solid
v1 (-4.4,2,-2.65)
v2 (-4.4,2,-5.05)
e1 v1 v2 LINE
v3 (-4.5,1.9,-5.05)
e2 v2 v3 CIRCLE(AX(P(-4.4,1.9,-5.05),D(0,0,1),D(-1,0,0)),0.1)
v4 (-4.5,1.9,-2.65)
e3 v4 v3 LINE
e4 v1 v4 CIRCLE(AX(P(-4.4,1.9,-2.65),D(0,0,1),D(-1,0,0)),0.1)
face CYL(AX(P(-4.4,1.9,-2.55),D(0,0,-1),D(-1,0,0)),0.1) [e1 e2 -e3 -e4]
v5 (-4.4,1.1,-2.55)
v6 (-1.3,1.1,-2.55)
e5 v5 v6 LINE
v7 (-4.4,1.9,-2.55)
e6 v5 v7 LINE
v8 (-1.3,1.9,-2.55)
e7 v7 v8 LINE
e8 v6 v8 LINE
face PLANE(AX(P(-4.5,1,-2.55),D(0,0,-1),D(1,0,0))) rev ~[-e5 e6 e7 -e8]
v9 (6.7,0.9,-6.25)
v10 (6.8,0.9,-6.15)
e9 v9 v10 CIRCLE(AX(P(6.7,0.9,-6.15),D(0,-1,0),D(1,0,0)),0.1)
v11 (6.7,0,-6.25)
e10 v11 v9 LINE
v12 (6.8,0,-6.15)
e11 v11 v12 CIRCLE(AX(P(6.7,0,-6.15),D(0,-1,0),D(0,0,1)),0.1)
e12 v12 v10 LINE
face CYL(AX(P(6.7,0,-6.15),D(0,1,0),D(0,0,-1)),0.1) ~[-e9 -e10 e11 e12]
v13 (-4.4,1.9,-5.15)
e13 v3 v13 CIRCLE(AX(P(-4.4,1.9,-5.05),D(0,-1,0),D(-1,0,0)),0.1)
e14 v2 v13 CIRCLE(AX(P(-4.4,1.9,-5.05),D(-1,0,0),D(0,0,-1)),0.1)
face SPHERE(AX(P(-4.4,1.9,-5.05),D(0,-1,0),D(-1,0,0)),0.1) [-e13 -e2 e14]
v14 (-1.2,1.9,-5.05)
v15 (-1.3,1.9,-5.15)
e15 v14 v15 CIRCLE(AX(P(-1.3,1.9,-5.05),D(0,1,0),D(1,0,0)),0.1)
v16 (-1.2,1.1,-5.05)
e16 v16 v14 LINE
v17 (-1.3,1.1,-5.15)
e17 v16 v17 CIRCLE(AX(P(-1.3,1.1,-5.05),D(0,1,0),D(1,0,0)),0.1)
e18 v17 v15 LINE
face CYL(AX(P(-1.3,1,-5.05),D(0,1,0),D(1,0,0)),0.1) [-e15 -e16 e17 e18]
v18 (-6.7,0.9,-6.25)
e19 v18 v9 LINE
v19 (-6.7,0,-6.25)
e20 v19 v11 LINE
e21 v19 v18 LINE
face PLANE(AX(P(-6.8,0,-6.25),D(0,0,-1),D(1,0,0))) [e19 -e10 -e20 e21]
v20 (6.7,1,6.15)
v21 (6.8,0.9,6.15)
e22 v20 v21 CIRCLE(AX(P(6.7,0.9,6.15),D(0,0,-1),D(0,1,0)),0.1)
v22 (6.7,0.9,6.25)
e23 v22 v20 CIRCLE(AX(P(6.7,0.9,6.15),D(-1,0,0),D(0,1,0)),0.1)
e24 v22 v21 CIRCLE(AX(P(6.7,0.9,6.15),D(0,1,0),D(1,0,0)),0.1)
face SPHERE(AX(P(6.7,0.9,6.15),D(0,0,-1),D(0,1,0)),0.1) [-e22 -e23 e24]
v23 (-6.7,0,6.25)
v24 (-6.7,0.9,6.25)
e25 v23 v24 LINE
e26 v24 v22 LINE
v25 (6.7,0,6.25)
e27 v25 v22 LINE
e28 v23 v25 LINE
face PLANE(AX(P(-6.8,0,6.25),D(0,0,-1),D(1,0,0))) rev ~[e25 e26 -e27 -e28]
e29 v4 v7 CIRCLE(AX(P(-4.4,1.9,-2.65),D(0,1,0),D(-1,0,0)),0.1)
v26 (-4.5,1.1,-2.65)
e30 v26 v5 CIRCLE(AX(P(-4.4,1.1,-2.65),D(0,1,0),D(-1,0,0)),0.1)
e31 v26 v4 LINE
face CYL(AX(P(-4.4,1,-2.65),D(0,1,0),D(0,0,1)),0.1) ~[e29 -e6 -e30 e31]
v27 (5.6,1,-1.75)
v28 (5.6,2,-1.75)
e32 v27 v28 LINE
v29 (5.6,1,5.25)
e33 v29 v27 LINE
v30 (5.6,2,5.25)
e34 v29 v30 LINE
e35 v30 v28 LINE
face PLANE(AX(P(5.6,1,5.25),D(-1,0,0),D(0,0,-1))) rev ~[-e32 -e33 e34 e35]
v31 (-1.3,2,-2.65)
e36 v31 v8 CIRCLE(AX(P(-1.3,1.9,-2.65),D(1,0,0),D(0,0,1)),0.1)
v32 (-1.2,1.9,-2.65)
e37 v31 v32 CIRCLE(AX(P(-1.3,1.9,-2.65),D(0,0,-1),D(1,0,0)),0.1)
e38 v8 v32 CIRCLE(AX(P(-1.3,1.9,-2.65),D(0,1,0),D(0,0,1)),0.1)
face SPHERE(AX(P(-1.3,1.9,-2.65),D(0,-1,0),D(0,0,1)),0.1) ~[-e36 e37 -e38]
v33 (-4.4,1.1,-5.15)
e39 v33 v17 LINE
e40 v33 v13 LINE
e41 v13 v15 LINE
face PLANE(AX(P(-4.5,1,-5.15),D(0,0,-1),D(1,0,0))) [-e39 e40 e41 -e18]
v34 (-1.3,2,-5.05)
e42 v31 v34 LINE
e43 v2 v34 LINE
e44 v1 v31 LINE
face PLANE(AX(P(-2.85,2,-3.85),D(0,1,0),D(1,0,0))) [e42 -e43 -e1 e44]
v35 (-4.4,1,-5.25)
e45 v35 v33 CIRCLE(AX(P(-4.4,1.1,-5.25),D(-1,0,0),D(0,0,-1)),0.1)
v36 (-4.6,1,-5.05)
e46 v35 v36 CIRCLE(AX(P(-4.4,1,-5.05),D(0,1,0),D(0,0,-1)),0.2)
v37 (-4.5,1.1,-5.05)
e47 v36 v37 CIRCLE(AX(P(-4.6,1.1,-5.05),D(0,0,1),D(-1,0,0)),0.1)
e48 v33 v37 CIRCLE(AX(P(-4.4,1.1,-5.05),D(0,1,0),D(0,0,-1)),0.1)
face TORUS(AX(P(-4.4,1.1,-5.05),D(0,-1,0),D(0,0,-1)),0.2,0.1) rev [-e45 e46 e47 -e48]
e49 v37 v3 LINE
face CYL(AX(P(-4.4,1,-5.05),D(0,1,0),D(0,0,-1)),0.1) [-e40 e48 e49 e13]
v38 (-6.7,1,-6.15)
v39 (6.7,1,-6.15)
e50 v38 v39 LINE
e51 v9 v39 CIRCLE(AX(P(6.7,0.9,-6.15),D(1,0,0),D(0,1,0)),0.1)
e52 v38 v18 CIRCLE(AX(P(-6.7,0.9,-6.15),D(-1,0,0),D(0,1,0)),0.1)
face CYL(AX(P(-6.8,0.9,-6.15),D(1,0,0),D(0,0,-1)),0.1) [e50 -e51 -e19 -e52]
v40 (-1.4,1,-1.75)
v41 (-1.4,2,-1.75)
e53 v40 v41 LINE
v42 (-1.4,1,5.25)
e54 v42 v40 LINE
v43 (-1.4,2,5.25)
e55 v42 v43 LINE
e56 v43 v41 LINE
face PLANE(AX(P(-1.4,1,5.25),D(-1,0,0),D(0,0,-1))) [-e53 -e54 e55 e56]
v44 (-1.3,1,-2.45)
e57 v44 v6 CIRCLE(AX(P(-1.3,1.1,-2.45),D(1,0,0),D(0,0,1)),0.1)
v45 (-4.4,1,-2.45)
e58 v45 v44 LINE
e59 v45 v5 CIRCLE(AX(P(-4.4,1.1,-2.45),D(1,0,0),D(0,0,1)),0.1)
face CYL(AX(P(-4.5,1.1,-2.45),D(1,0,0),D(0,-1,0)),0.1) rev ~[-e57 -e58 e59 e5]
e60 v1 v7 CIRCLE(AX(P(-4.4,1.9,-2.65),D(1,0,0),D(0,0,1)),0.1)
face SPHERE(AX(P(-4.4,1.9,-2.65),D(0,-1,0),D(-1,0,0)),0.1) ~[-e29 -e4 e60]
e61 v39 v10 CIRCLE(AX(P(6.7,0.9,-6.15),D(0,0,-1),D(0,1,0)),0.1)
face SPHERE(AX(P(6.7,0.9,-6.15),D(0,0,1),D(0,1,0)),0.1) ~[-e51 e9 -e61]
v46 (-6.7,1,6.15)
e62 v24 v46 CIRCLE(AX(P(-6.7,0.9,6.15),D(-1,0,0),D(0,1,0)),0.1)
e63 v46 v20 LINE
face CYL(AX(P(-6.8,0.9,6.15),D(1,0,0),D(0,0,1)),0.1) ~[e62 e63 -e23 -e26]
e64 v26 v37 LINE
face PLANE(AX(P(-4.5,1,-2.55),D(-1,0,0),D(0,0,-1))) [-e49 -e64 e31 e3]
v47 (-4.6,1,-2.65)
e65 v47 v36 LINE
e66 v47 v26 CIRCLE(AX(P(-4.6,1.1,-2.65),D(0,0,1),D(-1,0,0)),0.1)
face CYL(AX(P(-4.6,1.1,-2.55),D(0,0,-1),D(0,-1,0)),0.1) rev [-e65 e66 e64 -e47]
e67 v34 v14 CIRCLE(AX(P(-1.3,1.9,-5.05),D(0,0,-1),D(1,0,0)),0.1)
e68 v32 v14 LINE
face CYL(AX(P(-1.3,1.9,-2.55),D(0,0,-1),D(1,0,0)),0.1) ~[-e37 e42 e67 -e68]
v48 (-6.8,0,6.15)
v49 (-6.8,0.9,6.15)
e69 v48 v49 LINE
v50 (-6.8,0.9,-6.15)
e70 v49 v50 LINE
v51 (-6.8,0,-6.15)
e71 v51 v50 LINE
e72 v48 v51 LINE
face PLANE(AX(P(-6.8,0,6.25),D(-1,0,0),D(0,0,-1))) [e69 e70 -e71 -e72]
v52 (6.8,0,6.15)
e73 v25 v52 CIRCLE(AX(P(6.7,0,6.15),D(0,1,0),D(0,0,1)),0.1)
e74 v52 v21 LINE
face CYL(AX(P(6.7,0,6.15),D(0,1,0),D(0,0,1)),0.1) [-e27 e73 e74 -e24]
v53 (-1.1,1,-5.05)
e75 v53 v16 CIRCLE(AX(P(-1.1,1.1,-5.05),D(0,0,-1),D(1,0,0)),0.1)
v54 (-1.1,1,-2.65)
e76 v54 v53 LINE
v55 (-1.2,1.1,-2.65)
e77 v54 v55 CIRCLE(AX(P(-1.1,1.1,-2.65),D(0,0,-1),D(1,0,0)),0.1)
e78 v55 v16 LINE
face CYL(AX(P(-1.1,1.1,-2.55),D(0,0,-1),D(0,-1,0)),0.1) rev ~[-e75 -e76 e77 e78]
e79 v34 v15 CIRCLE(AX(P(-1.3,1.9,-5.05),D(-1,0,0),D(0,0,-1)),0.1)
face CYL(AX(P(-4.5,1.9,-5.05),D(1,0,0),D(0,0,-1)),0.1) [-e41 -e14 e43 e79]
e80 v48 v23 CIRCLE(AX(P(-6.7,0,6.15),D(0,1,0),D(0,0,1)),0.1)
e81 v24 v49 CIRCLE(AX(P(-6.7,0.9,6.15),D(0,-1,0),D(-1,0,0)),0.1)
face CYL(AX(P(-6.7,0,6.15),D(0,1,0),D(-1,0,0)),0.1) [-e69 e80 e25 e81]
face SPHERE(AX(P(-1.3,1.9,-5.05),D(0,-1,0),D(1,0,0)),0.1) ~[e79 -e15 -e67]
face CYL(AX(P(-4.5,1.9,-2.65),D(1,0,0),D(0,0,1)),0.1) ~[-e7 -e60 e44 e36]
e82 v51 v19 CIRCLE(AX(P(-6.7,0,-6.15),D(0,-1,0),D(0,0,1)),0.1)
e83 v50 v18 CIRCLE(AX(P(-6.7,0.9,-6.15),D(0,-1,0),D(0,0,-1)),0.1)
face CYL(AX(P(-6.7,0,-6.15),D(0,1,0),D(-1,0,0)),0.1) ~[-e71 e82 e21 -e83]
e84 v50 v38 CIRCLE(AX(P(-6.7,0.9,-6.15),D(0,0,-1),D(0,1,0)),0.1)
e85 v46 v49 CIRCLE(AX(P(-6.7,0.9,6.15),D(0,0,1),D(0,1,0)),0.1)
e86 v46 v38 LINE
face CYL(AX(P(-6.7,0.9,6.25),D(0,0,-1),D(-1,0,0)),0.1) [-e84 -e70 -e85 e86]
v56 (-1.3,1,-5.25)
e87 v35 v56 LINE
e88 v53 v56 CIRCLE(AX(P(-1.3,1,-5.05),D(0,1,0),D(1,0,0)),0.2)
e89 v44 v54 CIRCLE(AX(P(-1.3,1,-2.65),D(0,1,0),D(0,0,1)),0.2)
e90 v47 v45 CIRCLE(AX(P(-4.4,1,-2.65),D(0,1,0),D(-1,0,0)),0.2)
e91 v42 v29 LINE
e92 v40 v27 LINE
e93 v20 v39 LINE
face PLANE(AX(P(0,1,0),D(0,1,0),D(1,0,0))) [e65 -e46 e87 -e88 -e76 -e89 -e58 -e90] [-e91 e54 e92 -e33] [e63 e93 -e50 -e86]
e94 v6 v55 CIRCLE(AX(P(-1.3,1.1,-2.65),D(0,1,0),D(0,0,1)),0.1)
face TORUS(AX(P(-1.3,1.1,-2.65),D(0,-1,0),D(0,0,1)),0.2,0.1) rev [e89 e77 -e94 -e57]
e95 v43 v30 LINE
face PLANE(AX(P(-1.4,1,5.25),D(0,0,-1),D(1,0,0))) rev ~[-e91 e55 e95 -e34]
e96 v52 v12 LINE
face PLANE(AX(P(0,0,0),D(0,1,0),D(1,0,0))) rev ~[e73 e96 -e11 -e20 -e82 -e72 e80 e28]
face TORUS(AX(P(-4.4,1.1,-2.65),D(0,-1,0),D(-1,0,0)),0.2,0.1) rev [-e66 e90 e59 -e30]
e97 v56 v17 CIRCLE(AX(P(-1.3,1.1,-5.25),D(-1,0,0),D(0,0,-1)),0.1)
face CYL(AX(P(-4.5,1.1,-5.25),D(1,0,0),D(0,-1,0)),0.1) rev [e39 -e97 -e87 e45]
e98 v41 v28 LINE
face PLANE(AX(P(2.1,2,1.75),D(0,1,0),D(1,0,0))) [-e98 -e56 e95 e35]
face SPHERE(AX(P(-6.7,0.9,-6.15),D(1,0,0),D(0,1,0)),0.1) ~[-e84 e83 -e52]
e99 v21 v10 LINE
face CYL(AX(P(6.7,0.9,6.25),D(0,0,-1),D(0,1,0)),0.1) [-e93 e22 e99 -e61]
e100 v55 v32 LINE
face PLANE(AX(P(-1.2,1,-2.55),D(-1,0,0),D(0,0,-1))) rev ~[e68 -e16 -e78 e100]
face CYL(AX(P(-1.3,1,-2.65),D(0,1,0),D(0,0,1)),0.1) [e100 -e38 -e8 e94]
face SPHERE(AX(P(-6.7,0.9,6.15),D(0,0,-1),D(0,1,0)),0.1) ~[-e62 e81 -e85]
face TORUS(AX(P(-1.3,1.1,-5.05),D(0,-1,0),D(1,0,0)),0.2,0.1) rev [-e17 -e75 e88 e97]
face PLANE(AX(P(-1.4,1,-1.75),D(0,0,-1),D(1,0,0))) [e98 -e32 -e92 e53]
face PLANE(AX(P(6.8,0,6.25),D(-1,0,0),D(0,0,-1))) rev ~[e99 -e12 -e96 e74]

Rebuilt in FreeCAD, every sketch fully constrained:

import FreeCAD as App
import Part
import Sketcher
Q = App.Units.Quantity


def edges_at(feature, points):
    """Names of the edges that pass closest to the given points."""
    edges = feature.Shape.Edges
    near = lambda p: min(range(len(edges)), key=lambda i: edges[i].distToShape(Part.Vertex(*p))[0])
    return sorted({f"Edge{near(p) + 1}" for p in points})


def add_polygon(sketch, points):
    """Adds a closed chain of lines whose ends are joined by coincident constraints."""
    first, n = sketch.GeometryCount, len(points)
    for a, b in zip(points, points[1:] + points[:1]):
        sketch.addGeometry(Part.LineSegment(App.Vector(*a, 0), App.Vector(*b, 0)), False)
    for i in range(n):
        sketch.addConstraint(Sketcher.Constraint("Coincident", first + i, 2, first + (i + 1) % n, 1))

doc = App.newDocument("Part")
body = doc.addObject("PartDesign::Body", "Body")

# Sketch on XZ plane
sketch1 = doc.addObject("Sketcher::SketchObject", "Sketch")
body.addObject(sketch1)
sketch1.AttachmentSupport = (doc.XZ_Plane, [""])
sketch1.MapMode = "FlatFace"
add_polygon(sketch1, [(-7, -6), (-7, 6), (7, 6), (7, -6)])  # lines 0-3
sketch1.addConstraint(Sketcher.Constraint("Vertical", 0))
sketch1.addConstraint(Sketcher.Constraint("Horizontal", 1))
sketch1.addConstraint(Sketcher.Constraint("Vertical", 2))
sketch1.addConstraint(Sketcher.Constraint("Horizontal", 3))
sketch1.addConstraint(Sketcher.Constraint("Symmetric", 0, 2, 2, 2, -1, 1))
sketch1.addConstraint(Sketcher.Constraint("DistanceX", 1, 1, 1, 2, Q("13.6 mm")))
sketch1.addConstraint(Sketcher.Constraint("DistanceY", 0, 1, 0, 2, Q("12.5 mm")))
pad1 = doc.addObject("PartDesign::Pad", "Pad")
body.addObject(pad1)
pad1.Profile = sketch1
pad1.Length = 1
pad1.Reversed = True

# Sketch on XZ plane
sketch2 = doc.addObject("Sketcher::SketchObject", "Sketch001")
body.addObject(sketch2)
sketch2.AttachmentSupport = (doc.XZ_Plane, [""])
sketch2.MapMode = "FlatFace"
sketch2.AttachmentOffset = App.Placement(App.Vector(0, 0, -1), App.Rotation())
add_polygon(sketch2, [(-1, -2), (-1, 5), (6, 5), (6, -2)])  # lines 0-3
sketch2.addConstraint(Sketcher.Constraint("Vertical", 0))
sketch2.addConstraint(Sketcher.Constraint("Horizontal", 1))
sketch2.addConstraint(Sketcher.Constraint("Vertical", 2))
sketch2.addConstraint(Sketcher.Constraint("Horizontal", 3))
sketch2.addConstraint(Sketcher.Constraint("Equal", 3, 0))
sketch2.addConstraint(Sketcher.Constraint("DistanceX", 1, 1, 1, 2, Q("7 mm")))
sketch2.addConstraint(Sketcher.Constraint("DistanceX", 0, 2, -1, 1, Q("1.4 mm")))
sketch2.addConstraint(Sketcher.Constraint("DistanceY", -1, 1, 0, 2, Q("5.25 mm")))
pad2 = doc.addObject("PartDesign::Pad", "Pad001")
body.addObject(pad2)
pad2.Profile = sketch2
pad2.Length = 1
pad2.Reversed = True

# Sketch on XZ plane
sketch3 = doc.addObject("Sketcher::SketchObject", "Sketch002")
body.addObject(sketch3)
sketch3.AttachmentSupport = (doc.XZ_Plane, [""])
sketch3.MapMode = "FlatFace"
sketch3.AttachmentOffset = App.Placement(App.Vector(0, 0, -1), App.Rotation())
add_polygon(sketch3, [(-4.5, -5.2), (-4.5, -2.5), (-1.2, -2.5), (-1.2, -5.2)])  # lines 0-3
sketch3.addConstraint(Sketcher.Constraint("Vertical", 0))
sketch3.addConstraint(Sketcher.Constraint("Horizontal", 1))
sketch3.addConstraint(Sketcher.Constraint("Vertical", 2))
sketch3.addConstraint(Sketcher.Constraint("Horizontal", 3))
sketch3.addConstraint(Sketcher.Constraint("DistanceX", 1, 1, 1, 2, Q("3.3 mm")))
sketch3.addConstraint(Sketcher.Constraint("DistanceY", 0, 1, 0, 2, Q("2.6 mm")))
sketch3.addConstraint(Sketcher.Constraint("DistanceX", 0, 2, -1, 1, Q("4.5 mm")))
sketch3.addConstraint(Sketcher.Constraint("DistanceY", 0, 2, -1, 1, Q("2.55 mm")))
pad3 = doc.addObject("PartDesign::Pad", "Pad002")
body.addObject(pad3)
pad3.Profile = sketch3
pad3.Length = 1
pad3.Reversed = True
doc.recompute()

fillet = doc.addObject("PartDesign::Fillet", "Fillet")
body.addObject(fillet)
fillet.Base = (pad3, edges_at(pad3, [
    (6.8, 1, 0),
    (0, 1, -6.25),
    (-4.5, 1, -3.85),
    (-4.5, 1.5, -5.15),
    (-2.85, 1, -2.55),
    (-4.5, 1.5, -2.55),
    (-1.2, 1, -3.85),
    (-1.2, 1.5, -2.55),
    (-2.85, 1, -5.15),
    (-1.2, 1.5, -5.15),
    (-4.5, 2, -3.85),
    (-2.85, 2, -2.55),
    (-1.2, 2, -3.85),
    (-2.85, 2, -5.15),
    (-6.8, 1, 0),
    (0, 1, 6.25),
    (-6.8, 0.5, -6.25),
    (6.8, 0.5, -6.25),
    (6.8, 0.5, 6.25),
    (-6.8, 0.5, 6.25),
]))
fillet.Radius = 0.1

doc.recompute()
